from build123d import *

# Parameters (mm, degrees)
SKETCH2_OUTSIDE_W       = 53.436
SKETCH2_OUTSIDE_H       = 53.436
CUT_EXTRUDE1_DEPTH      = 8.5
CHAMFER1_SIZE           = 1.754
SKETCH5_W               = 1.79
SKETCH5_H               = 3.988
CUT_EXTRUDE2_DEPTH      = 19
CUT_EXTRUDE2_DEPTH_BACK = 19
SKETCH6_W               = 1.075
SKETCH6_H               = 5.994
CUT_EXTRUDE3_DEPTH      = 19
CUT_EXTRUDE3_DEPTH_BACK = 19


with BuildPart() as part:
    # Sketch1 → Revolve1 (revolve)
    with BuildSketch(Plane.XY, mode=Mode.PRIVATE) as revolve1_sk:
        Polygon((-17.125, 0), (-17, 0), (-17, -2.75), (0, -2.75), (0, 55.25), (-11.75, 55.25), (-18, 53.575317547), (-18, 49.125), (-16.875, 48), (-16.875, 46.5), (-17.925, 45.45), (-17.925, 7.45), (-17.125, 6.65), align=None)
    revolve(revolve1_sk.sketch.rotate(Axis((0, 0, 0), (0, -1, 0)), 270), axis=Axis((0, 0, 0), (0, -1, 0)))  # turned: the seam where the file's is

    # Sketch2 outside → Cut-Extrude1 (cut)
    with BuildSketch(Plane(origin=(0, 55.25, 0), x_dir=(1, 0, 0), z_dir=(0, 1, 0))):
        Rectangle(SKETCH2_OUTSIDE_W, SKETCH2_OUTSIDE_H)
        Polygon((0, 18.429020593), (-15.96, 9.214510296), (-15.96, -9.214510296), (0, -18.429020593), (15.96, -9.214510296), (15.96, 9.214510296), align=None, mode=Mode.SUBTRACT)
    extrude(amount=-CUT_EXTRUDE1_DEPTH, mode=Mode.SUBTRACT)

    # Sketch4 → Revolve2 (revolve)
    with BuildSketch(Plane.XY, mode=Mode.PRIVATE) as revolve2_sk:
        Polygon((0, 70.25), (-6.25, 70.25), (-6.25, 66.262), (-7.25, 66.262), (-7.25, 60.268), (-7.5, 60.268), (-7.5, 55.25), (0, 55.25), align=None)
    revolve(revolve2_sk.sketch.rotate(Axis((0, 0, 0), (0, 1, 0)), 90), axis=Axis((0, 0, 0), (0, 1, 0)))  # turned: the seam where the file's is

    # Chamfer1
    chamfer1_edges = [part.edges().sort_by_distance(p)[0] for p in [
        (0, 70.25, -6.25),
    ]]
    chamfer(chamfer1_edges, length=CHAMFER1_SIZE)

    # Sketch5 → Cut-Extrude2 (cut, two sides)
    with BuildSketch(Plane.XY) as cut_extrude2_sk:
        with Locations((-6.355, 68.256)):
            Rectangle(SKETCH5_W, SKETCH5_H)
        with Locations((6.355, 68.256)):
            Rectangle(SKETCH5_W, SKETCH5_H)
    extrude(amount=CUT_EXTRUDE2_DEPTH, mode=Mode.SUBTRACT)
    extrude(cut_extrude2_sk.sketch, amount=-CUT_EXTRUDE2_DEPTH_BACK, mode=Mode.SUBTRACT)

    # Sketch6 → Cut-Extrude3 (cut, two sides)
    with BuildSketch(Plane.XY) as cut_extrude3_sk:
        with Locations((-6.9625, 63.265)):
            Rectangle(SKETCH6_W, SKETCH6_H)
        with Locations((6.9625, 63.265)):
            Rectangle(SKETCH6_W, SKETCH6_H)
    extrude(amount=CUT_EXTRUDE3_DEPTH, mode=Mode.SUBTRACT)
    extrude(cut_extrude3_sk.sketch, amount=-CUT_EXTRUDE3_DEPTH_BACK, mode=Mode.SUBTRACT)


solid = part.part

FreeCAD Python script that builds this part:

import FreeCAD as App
import Part
import Sketcher

V = App.Vector
Q = App.Units.Quantity


def edges_at(feature, points):
    """Names of the edges that pass closest to the given points."""
    edges = feature.Shape.Edges
    near = lambda p: min(range(len(edges)), key=lambda i: edges[i].distToShape(Part.Vertex(*p))[0])
    return sorted({f"Edge{near(p) + 1}" for p in points})

doc = App.newDocument("Part")
params = doc.addObject("Spreadsheet::Sheet", "Params")
for row, (alias, value) in enumerate([
    ("sketch1_width", "17 mm"),
    ("sketch1_height", "58 mm"),
    ("sketch1_height2", "38 mm"),
    ("sketch1_height3", "1.5 mm"),
    ("sketch1_width2", "11.75 mm"),
    ("revolution_angle", "360 deg"),
    ("pocket1_length", "8.5 mm"),
    ("sketch3_width", "1 mm"),
    ("sketch3_height", "15 mm"),
    ("sketch3_width2", "7.5 mm"),
    ("sketch3_width3", "6.25 mm"),
    ("revolution2_angle", "360 deg"),
    ("chamfer_size", "1.754 mm"),
    ("sketch4_width", "1.79 mm"),
], start=1):
    params.set(f"A{row}", alias)
    params.set(f"B{row}", "=" + value)
    params.setAlias(f"B{row}", alias)

body = doc.addObject("PartDesign::Body", "Body")

# Sketch on XY plane
sketch1 = doc.addObject("Sketcher::SketchObject", "Sketch")
body.addObject(sketch1)
sketch1.AttachmentSupport = (doc.XY_Plane, [""])
sketch1.MapMode = "FlatFace"
sketch1.addGeometry(Part.LineSegment(V(-17.125, 0, 0), V(-17, 0, 0)), False)
sketch1.addGeometry(Part.LineSegment(V(-17, 0, 0), V(-17, -2.75, 0)), False)
sketch1.addGeometry(Part.LineSegment(V(-17, -2.75, 0), V(0, -2.75, 0)), False)
sketch1.addGeometry(Part.LineSegment(V(0, -2.75, 0), V(0, 55.25, 0)), False)
sketch1.addGeometry(Part.LineSegment(V(0, 55.25, 0), V(-11.75, 55.25, 0)), False)
sketch1.addGeometry(Part.LineSegment(V(-11.75, 55.25, 0), V(-18, 53.575318, 0)), False)
sketch1.addGeometry(Part.LineSegment(V(-18, 53.575318, 0), V(-18, 49.125, 0)), False)
sketch1.addGeometry(Part.LineSegment(V(-18, 49.125, 0), V(-16.875, 48, 0)), False)
sketch1.addGeometry(Part.LineSegment(V(-16.875, 48, 0), V(-16.875, 46.5, 0)), False)
sketch1.addGeometry(Part.LineSegment(V(-16.875, 46.5, 0), V(-17.925, 45.45, 0)), False)
sketch1.addGeometry(Part.LineSegment(V(-17.925, 45.45, 0), V(-17.925, 7.45, 0)), False)
sketch1.addGeometry(Part.LineSegment(V(-17.925, 7.45, 0), V(-17.125, 6.65, 0)), False)
sketch1.addGeometry(Part.LineSegment(V(-17.125, 6.65, 0), V(-17.125, 0, 0)), False)
sketch1.addConstraint(Sketcher.Constraint("Coincident", 0, 2, 1, 1))
sketch1.addConstraint(Sketcher.Constraint("Coincident", 1, 2, 2, 1))
sketch1.addConstraint(Sketcher.Constraint("Coincident", 2, 2, 3, 1))
sketch1.addConstraint(Sketcher.Constraint("Coincident", 3, 2, 4, 1))
sketch1.addConstraint(Sketcher.Constraint("Coincident", 4, 2, 5, 1))
sketch1.addConstraint(Sketcher.Constraint("Coincident", 5, 2, 6, 1))
sketch1.addConstraint(Sketcher.Constraint("Coincident", 6, 2, 7, 1))
sketch1.addConstraint(Sketcher.Constraint("Coincident", 7, 2, 8, 1))
sketch1.addConstraint(Sketcher.Constraint("Coincident", 8, 2, 9, 1))
sketch1.addConstraint(Sketcher.Constraint("Coincident", 9, 2, 10, 1))
sketch1.addConstraint(Sketcher.Constraint("Coincident", 10, 2, 11, 1))
sketch1.addConstraint(Sketcher.Constraint("Coincident", 11, 2, 12, 1))
sketch1.addConstraint(Sketcher.Constraint("Coincident", 12, 2, 0, 1))
sketch1.addConstraint(Sketcher.Constraint("Horizontal", 0))
sketch1.addConstraint(Sketcher.Constraint("Vertical", 1))
sketch1.addConstraint(Sketcher.Constraint("Horizontal", 2))
sketch1.addConstraint(Sketcher.Constraint("Vertical", 3))
sketch1.addConstraint(Sketcher.Constraint("Horizontal", 4))
sketch1.addConstraint(Sketcher.Constraint("Vertical", 6))
sketch1.addConstraint(Sketcher.Constraint("Vertical", 8))
sketch1.addConstraint(Sketcher.Constraint("Vertical", 10))
sketch1.addConstraint(Sketcher.Constraint("Vertical", 12))
sketch1.addConstraint(Sketcher.Constraint("PointOnObject", 0, 2, -1))
sketch1.addConstraint(Sketcher.Constraint("PointOnObject", 2, 2, -2))
sketch1.addConstraint(Sketcher.Constraint("Perpendicular", 7, 9))
sketch1.addConstraint(Sketcher.Constraint("Perpendicular", 9, 11))
sketch1.addConstraint(Sketcher.Constraint("DistanceX", 2, 1, 2, 2, 17.0))
sketch1.addConstraint(Sketcher.Constraint("DistanceY", 3, 1, 3, 2, 58.0))
sketch1.addConstraint(Sketcher.Constraint("DistanceY", 10, 2, 10, 1, 38.0))
sketch1.addConstraint(Sketcher.Constraint("Angle", 5, Q("-165 deg")))
sketch1.addConstraint(Sketcher.Constraint("Angle", 7, Q("-45 deg")))
sketch1.addConstraint(Sketcher.Constraint("DistanceY", 8, 2, 8, 1, 1.5))
sketch1.addConstraint(Sketcher.Constraint("DistanceX", 5, 2, -1, 1, 18.0))
sketch1.addConstraint(Sketcher.Constraint("DistanceY", -1, 1, 7, 2, 48.0))
sketch1.addConstraint(Sketcher.Constraint("DistanceX", 4, 2, 4, 1, 11.75))
sketch1.addConstraint(Sketcher.Constraint("DistanceY", 1, 2, 1, 1, 2.75))
sketch1.addConstraint(Sketcher.Constraint("DistanceY", 12, 2, 12, 1, 6.65))
sketch1.addConstraint(Sketcher.Constraint("DistanceY", 9, 2, 4, 2, 9.8))
sketch1.addConstraint(Sketcher.Constraint("DistanceX", 0, 1, 0, 2, 0.125))
sketch1.setExpression("Constraints[26]", "Params.sketch1_width")
sketch1.setExpression("Constraints[27]", "Params.sketch1_height")
sketch1.setExpression("Constraints[28]", "Params.sketch1_height2")
sketch1.setExpression("Constraints[31]", "Params.sketch1_height3")
sketch1.setExpression("Constraints[34]", "Params.sketch1_width2")
revolution = doc.addObject("PartDesign::Revolution", "Revolution")
body.addObject(revolution)
revolution.Profile = sketch1
revolution.ReferenceAxis = (sketch1, ["V_Axis"])
revolution.setExpression("Angle", "Params.revolution_angle")

# Sketch on XZ plane
sketch2 = doc.addObject("Sketcher::SketchObject", "Sketch001")
body.addObject(sketch2)
sketch2.AttachmentSupport = (doc.XZ_Plane, [""])
sketch2.MapMode = "FlatFace"
sketch2.AttachmentOffset = App.Placement(V(0, 0, -55.25), App.Rotation())
sketch2.addGeometry(Part.LineSegment(V(-26.718, -26.718, 0), V(-26.718, 26.718, 0)), False)
sketch2.addGeometry(Part.LineSegment(V(-26.718, 26.718, 0), V(26.718, 26.718, 0)), False)
sketch2.addGeometry(Part.LineSegment(V(26.718, 26.718, 0), V(26.718, -26.718, 0)), False)
sketch2.addGeometry(Part.LineSegment(V(26.718, -26.718, 0), V(-26.718, -26.718, 0)), False)
sketch2.addGeometry(Part.LineSegment(V(-15.96, -9.21451, 0), V(0, -18.429021, 0)), False)
sketch2.addGeometry(Part.LineSegment(V(0, -18.429021, 0), V(15.96, -9.21451, 0)), False)
sketch2.addGeometry(Part.LineSegment(V(15.96, -9.21451, 0), V(15.96, 9.21451, 0)), False)
sketch2.addGeometry(Part.LineSegment(V(15.96, 9.21451, 0), V(0, 18.429021, 0)), False)
sketch2.addGeometry(Part.LineSegment(V(0, 18.429021, 0), V(-15.96, 9.21451, 0)), False)
sketch2.addGeometry(Part.LineSegment(V(-15.96, 9.21451, 0), V(-15.96, -9.21451, 0)), False)
sketch2.addConstraint(Sketcher.Constraint("Coincident", 0, 2, 1, 1))
sketch2.addConstraint(Sketcher.Constraint("Coincident", 1, 2, 2, 1))
sketch2.addConstraint(Sketcher.Constraint("Coincident", 2, 2, 3, 1))
sketch2.addConstraint(Sketcher.Constraint("Coincident", 3, 2, 0, 1))
sketch2.addConstraint(Sketcher.Constraint("Coincident", 4, 2, 5, 1))
sketch2.addConstraint(Sketcher.Constraint("Coincident", 5, 2, 6, 1))
sketch2.addConstraint(Sketcher.Constraint("Coincident", 6, 2, 7, 1))
sketch2.addConstraint(Sketcher.Constraint("Coincident", 7, 2, 8, 1))
sketch2.addConstraint(Sketcher.Constraint("Coincident", 8, 2, 9, 1))
sketch2.addConstraint(Sketcher.Constraint("Coincident", 9, 2, 4, 1))
sketch2.addConstraint(Sketcher.Constraint("Vertical", 0))
sketch2.addConstraint(Sketcher.Constraint("Horizontal", 1))
sketch2.addConstraint(Sketcher.Constraint("Vertical", 2))
sketch2.addConstraint(Sketcher.Constraint("Horizontal", 3))
sketch2.addConstraint(Sketcher.Constraint("Vertical", 6))
sketch2.addConstraint(Sketcher.Constraint("Vertical", 9))
sketch2.addConstraint(Sketcher.Constraint("Symmetric", 0, 2, 2, 2, -1, 1))
sketch2.addConstraint(Sketcher.Constraint("Symmetric", 4, 2, 7, 2, -1, 1))
sketch2.addConstraint(Sketcher.Constraint("Symmetric", 5, 2, 8, 2, -1, 1))
sketch2.addConstraint(Sketcher.Constraint("PointOnObject", 4, 2, -2))
sketch2.addConstraint(Sketcher.Constraint("Parallel", 4, 7))
sketch2.addConstraint(Sketcher.Constraint("Horizontal", 6, 2, 8, 2))
sketch2.addConstraint(Sketcher.Constraint("Equal", 3, 0))
sketch2.addConstraint(Sketcher.Constraint("Angle", 4, Q("-30 deg")))
sketch2.addConstraint(Sketcher.Constraint("DistanceX", 1, 1, 1, 2, 53.436))
sketch2.addConstraint(Sketcher.Constraint("DistanceX", -1, 1, 5, 2, 15.96))
sketch2.addConstraint(Sketcher.Constraint("DistanceY", 6, 1, 6, 2, 18.429021))
pocket1 = doc.addObject("PartDesign::Pocket", "Pocket")
body.addObject(pocket1)
pocket1.Profile = sketch2
pocket1.setExpression("Length", "Params.pocket1_length")
pocket1.Reversed = True

# Sketch on XY plane
sketch3 = doc.addObject("Sketcher::SketchObject", "Sketch002")
body.addObject(sketch3)
sketch3.AttachmentSupport = (doc.XY_Plane, [""])
sketch3.MapMode = "FlatFace"
sketch3.addGeometry(Part.LineSegment(V(0, 70.25, 0), V(-6.25, 70.25, 0)), False)
sketch3.addGeometry(Part.LineSegment(V(-6.25, 70.25, 0), V(-6.25, 66.262, 0)), False)
sketch3.addGeometry(Part.LineSegment(V(-6.25, 66.262, 0), V(-7.25, 66.262, 0)), False)
sketch3.addGeometry(Part.LineSegment(V(-7.25, 66.262, 0), V(-7.25, 60.268, 0)), False)
sketch3.addGeometry(Part.LineSegment(V(-7.25, 60.268, 0), V(-7.5, 60.268, 0)), False)
sketch3.addGeometry(Part.LineSegment(V(-7.5, 60.268, 0), V(-7.5, 55.25, 0)), False)
sketch3.addGeometry(Part.LineSegment(V(-7.5, 55.25, 0), V(0, 55.25, 0)), False)
sketch3.addGeometry(Part.LineSegment(V(0, 55.25, 0), V(0, 70.25, 0)), False)
sketch3.addConstraint(Sketcher.Constraint("Coincident", 0, 2, 1, 1))
sketch3.addConstraint(Sketcher.Constraint("Coincident", 1, 2, 2, 1))
sketch3.addConstraint(Sketcher.Constraint("Coincident", 2, 2, 3, 1))
sketch3.addConstraint(Sketcher.Constraint("Coincident", 3, 2, 4, 1))
sketch3.addConstraint(Sketcher.Constraint("Coincident", 4, 2, 5, 1))
sketch3.addConstraint(Sketcher.Constraint("Coincident", 5, 2, 6, 1))
sketch3.addConstraint(Sketcher.Constraint("Coincident", 6, 2, 7, 1))
sketch3.addConstraint(Sketcher.Constraint("Coincident", 7, 2, 0, 1))
sketch3.addConstraint(Sketcher.Constraint("Horizontal", 0))
sketch3.addConstraint(Sketcher.Constraint("Vertical", 1))
sketch3.addConstraint(Sketcher.Constraint("Horizontal", 2))
sketch3.addConstraint(Sketcher.Constraint("Vertical", 3))
sketch3.addConstraint(Sketcher.Constraint("Horizontal", 4))
sketch3.addConstraint(Sketcher.Constraint("Vertical", 5))
sketch3.addConstraint(Sketcher.Constraint("Horizontal", 6))
sketch3.addConstraint(Sketcher.Constraint("Vertical", 7))
sketch3.addConstraint(Sketcher.Constraint("PointOnObject", 6, 2, -2))
sketch3.addConstraint(Sketcher.Constraint("DistanceX", 2, 2, 2, 1, 1.0))
sketch3.addConstraint(Sketcher.Constraint("DistanceY", 7, 1, 7, 2, 15.0))
sketch3.addConstraint(Sketcher.Constraint("DistanceX", 6, 1, 6, 2, 7.5))
sketch3.addConstraint(Sketcher.Constraint("DistanceX", 0, 2, 0, 1, 6.25))
sketch3.addConstraint(Sketcher.Constraint("DistanceY", 1, 2, 1, 1, 3.988))
sketch3.addConstraint(Sketcher.Constraint("DistanceY", 3, 2, 3, 1, 5.994))
sketch3.addConstraint(Sketcher.Constraint("DistanceY", -1, 1, 0, 2, 70.25))
sketch3.setExpression("Constraints[17]", "Params.sketch3_width")
sketch3.setExpression("Constraints[18]", "Params.sketch3_height")
sketch3.setExpression("Constraints[19]", "Params.sketch3_width2")
sketch3.setExpression("Constraints[20]", "Params.sketch3_width3")
revolution2 = doc.addObject("PartDesign::Revolution", "Revolution001")
body.addObject(revolution2)
revolution2.Profile = sketch3
revolution2.ReferenceAxis = (sketch3, ["V_Axis"])
revolution2.setExpression("Angle", "Params.revolution2_angle")
doc.recompute()

chamfer = doc.addObject("PartDesign::Chamfer", "Chamfer")
body.addObject(chamfer)
chamfer.Base = (revolution2, edges_at(revolution2, [(0, 70.25, -6.25)]))
chamfer.setExpression("Size", "Params.chamfer_size")

# Sketch on XY plane
sketch4 = doc.addObject("Sketcher::SketchObject", "Sketch003")
body.addObject(sketch4)
sketch4.AttachmentSupport = (doc.XY_Plane, [""])
sketch4.MapMode = "FlatFace"
sketch4.addGeometry(Part.LineSegment(V(-7.25, 70.25, 0), V(-7.25, 66.262, 0)), False)
sketch4.addGeometry(Part.LineSegment(V(-7.25, 66.262, 0), V(-5.46, 66.262, 0)), False)
sketch4.addGeometry(Part.LineSegment(V(-5.46, 66.262, 0), V(-5.46, 70.25, 0)), False)
sketch4.addGeometry(Part.LineSegment(V(-5.46, 70.25, 0), V(-7.25, 70.25, 0)), False)
sketch4.addGeometry(Part.LineSegment(V(5.46, 70.25, 0), V(5.46, 66.262, 0)), False)
sketch4.addGeometry(Part.LineSegment(V(5.46, 66.262, 0), V(7.25, 66.262, 0)), False)
sketch4.addGeometry(Part.LineSegment(V(7.25, 66.262, 0), V(7.25, 70.25, 0)), False)
sketch4.addGeometry(Part.LineSegment(V(7.25, 70.25, 0), V(5.46, 70.25, 0)), False)
sketch4.addConstraint(Sketcher.Constraint("Coincident", 0, 2, 1, 1))
sketch4.addConstraint(Sketcher.Constraint("Coincident", 1, 2, 2, 1))
sketch4.addConstraint(Sketcher.Constraint("Coincident", 2, 2, 3, 1))
sketch4.addConstraint(Sketcher.Constraint("Coincident", 3, 2, 0, 1))
sketch4.addConstraint(Sketcher.Constraint("Coincident", 4, 2, 5, 1))
sketch4.addConstraint(Sketcher.Constraint("Coincident", 5, 2, 6, 1))
sketch4.addConstraint(Sketcher.Constraint("Coincident", 6, 2, 7, 1))
sketch4.addConstraint(Sketcher.Constraint("Coincident", 7, 2, 4, 1))
sketch4.addConstraint(Sketcher.Constraint("Vertical", 0))
sketch4.addConstraint(Sketcher.Constraint("Horizontal", 1))
sketch4.addConstraint(Sketcher.Constraint("Vertical", 2))
sketch4.addConstraint(Sketcher.Constraint("Horizontal", 3))
sketch4.addConstraint(Sketcher.Constraint("Vertical", 4))
sketch4.addConstraint(Sketcher.Constraint("Horizontal", 5))
sketch4.addConstraint(Sketcher.Constraint("Vertical", 6))
sketch4.addConstraint(Sketcher.Constraint("Horizontal", 7))
sketch4.addConstraint(Sketcher.Constraint("Symmetric", 1, 2, 4, 2, -2))
sketch4.addConstraint(Sketcher.Constraint("Symmetric", 3, 2, 6, 2, -2))
sketch4.addConstraint(Sketcher.Constraint("DistanceX", 1, 1, 1, 2, 1.79))
sketch4.addConstraint(Sketcher.Constraint("DistanceX", 0, 2, 5, 2, 14.5))
sketch4.addConstraint(Sketcher.Constraint("DistanceY", 0, 2, 0, 1, 3.988))
sketch4.addConstraint(Sketcher.Constraint("DistanceY", -1, 1, 2, 2, 70.25))
sketch4.setExpression("Constraints[18]", "Params.sketch4_width")
pocket2 = doc.addObject("PartDesign::Pocket", "Pocket001")
body.addObject(pocket2)
pocket2.Profile = sketch4
pocket2.Type = "ThroughAll"
pocket2.Midplane = True

# Sketch on XY plane
sketch5 = doc.addObject("Sketcher::SketchObject", "Sketch004")
body.addObject(sketch5)
sketch5.AttachmentSupport = (doc.XY_Plane, [""])
sketch5.MapMode = "FlatFace"
sketch5.addGeometry(Part.LineSegment(V(-7.5, 66.262, 0), V(-7.5, 60.268, 0)), False)
sketch5.addGeometry(Part.LineSegment(V(-7.5, 60.268, 0), V(-6.425, 60.268, 0)), False)
sketch5.addGeometry(Part.LineSegment(V(-6.425, 60.268, 0), V(-6.425, 66.262, 0)), False)
sketch5.addGeometry(Part.LineSegment(V(-6.425, 66.262, 0), V(-7.5, 66.262, 0)), False)
sketch5.addGeometry(Part.LineSegment(V(6.425, 66.262, 0), V(6.425, 60.268, 0)), False)
sketch5.addGeometry(Part.LineSegment(V(6.425, 60.268, 0), V(7.5, 60.268, 0)), False)
sketch5.addGeometry(Part.LineSegment(V(7.5, 60.268, 0), V(7.5, 66.262, 0)), False)
sketch5.addGeometry(Part.LineSegment(V(7.5, 66.262, 0), V(6.425, 66.262, 0)), False)
sketch5.addConstraint(Sketcher.Constraint("Coincident", 0, 2, 1, 1))
sketch5.addConstraint(Sketcher.Constraint("Coincident", 1, 2, 2, 1))
sketch5.addConstraint(Sketcher.Constraint("Coincident", 2, 2, 3, 1))
sketch5.addConstraint(Sketcher.Constraint("Coincident", 3, 2, 0, 1))
sketch5.addConstraint(Sketcher.Constraint("Coincident", 4, 2, 5, 1))
sketch5.addConstraint(Sketcher.Constraint("Coincident", 5, 2, 6, 1))
sketch5.addConstraint(Sketcher.Constraint("Coincident", 6, 2, 7, 1))
sketch5.addConstraint(Sketcher.Constraint("Coincident", 7, 2, 4, 1))
sketch5.addConstraint(Sketcher.Constraint("Vertical", 0))
sketch5.addConstraint(Sketcher.Constraint("Horizontal", 1))
sketch5.addConstraint(Sketcher.Constraint("Vertical", 2))
sketch5.addConstraint(Sketcher.Constraint("Horizontal", 3))
sketch5.addConstraint(Sketcher.Constraint("Vertical", 4))
sketch5.addConstraint(Sketcher.Constraint("Horizontal", 5))
sketch5.addConstraint(Sketcher.Constraint("Vertical", 6))
sketch5.addConstraint(Sketcher.Constraint("Horizontal", 7))
sketch5.addConstraint(Sketcher.Constraint("Symmetric", 1, 2, 4, 2, -2))
sketch5.addConstraint(Sketcher.Constraint("Symmetric", 3, 2, 6, 2, -2))
sketch5.addConstraint(Sketcher.Constraint("DistanceX", 0, 2, 5, 2, 15.0))
sketch5.addConstraint(Sketcher.Constraint("DistanceX", 1, 1, 1, 2, 1.075))
sketch5.addConstraint(Sketcher.Constraint("DistanceY", 0, 2, 0, 1, 5.994))
sketch5.addConstraint(Sketcher.Constraint("DistanceY", -1, 1, 0, 2, 60.268))
pocket3 = doc.addObject("PartDesign::Pocket", "Pocket002")
body.addObject(pocket3)
pocket3.Profile = sketch5
pocket3.Type = "ThroughAll"
pocket3.Midplane = True

doc.recompute()
